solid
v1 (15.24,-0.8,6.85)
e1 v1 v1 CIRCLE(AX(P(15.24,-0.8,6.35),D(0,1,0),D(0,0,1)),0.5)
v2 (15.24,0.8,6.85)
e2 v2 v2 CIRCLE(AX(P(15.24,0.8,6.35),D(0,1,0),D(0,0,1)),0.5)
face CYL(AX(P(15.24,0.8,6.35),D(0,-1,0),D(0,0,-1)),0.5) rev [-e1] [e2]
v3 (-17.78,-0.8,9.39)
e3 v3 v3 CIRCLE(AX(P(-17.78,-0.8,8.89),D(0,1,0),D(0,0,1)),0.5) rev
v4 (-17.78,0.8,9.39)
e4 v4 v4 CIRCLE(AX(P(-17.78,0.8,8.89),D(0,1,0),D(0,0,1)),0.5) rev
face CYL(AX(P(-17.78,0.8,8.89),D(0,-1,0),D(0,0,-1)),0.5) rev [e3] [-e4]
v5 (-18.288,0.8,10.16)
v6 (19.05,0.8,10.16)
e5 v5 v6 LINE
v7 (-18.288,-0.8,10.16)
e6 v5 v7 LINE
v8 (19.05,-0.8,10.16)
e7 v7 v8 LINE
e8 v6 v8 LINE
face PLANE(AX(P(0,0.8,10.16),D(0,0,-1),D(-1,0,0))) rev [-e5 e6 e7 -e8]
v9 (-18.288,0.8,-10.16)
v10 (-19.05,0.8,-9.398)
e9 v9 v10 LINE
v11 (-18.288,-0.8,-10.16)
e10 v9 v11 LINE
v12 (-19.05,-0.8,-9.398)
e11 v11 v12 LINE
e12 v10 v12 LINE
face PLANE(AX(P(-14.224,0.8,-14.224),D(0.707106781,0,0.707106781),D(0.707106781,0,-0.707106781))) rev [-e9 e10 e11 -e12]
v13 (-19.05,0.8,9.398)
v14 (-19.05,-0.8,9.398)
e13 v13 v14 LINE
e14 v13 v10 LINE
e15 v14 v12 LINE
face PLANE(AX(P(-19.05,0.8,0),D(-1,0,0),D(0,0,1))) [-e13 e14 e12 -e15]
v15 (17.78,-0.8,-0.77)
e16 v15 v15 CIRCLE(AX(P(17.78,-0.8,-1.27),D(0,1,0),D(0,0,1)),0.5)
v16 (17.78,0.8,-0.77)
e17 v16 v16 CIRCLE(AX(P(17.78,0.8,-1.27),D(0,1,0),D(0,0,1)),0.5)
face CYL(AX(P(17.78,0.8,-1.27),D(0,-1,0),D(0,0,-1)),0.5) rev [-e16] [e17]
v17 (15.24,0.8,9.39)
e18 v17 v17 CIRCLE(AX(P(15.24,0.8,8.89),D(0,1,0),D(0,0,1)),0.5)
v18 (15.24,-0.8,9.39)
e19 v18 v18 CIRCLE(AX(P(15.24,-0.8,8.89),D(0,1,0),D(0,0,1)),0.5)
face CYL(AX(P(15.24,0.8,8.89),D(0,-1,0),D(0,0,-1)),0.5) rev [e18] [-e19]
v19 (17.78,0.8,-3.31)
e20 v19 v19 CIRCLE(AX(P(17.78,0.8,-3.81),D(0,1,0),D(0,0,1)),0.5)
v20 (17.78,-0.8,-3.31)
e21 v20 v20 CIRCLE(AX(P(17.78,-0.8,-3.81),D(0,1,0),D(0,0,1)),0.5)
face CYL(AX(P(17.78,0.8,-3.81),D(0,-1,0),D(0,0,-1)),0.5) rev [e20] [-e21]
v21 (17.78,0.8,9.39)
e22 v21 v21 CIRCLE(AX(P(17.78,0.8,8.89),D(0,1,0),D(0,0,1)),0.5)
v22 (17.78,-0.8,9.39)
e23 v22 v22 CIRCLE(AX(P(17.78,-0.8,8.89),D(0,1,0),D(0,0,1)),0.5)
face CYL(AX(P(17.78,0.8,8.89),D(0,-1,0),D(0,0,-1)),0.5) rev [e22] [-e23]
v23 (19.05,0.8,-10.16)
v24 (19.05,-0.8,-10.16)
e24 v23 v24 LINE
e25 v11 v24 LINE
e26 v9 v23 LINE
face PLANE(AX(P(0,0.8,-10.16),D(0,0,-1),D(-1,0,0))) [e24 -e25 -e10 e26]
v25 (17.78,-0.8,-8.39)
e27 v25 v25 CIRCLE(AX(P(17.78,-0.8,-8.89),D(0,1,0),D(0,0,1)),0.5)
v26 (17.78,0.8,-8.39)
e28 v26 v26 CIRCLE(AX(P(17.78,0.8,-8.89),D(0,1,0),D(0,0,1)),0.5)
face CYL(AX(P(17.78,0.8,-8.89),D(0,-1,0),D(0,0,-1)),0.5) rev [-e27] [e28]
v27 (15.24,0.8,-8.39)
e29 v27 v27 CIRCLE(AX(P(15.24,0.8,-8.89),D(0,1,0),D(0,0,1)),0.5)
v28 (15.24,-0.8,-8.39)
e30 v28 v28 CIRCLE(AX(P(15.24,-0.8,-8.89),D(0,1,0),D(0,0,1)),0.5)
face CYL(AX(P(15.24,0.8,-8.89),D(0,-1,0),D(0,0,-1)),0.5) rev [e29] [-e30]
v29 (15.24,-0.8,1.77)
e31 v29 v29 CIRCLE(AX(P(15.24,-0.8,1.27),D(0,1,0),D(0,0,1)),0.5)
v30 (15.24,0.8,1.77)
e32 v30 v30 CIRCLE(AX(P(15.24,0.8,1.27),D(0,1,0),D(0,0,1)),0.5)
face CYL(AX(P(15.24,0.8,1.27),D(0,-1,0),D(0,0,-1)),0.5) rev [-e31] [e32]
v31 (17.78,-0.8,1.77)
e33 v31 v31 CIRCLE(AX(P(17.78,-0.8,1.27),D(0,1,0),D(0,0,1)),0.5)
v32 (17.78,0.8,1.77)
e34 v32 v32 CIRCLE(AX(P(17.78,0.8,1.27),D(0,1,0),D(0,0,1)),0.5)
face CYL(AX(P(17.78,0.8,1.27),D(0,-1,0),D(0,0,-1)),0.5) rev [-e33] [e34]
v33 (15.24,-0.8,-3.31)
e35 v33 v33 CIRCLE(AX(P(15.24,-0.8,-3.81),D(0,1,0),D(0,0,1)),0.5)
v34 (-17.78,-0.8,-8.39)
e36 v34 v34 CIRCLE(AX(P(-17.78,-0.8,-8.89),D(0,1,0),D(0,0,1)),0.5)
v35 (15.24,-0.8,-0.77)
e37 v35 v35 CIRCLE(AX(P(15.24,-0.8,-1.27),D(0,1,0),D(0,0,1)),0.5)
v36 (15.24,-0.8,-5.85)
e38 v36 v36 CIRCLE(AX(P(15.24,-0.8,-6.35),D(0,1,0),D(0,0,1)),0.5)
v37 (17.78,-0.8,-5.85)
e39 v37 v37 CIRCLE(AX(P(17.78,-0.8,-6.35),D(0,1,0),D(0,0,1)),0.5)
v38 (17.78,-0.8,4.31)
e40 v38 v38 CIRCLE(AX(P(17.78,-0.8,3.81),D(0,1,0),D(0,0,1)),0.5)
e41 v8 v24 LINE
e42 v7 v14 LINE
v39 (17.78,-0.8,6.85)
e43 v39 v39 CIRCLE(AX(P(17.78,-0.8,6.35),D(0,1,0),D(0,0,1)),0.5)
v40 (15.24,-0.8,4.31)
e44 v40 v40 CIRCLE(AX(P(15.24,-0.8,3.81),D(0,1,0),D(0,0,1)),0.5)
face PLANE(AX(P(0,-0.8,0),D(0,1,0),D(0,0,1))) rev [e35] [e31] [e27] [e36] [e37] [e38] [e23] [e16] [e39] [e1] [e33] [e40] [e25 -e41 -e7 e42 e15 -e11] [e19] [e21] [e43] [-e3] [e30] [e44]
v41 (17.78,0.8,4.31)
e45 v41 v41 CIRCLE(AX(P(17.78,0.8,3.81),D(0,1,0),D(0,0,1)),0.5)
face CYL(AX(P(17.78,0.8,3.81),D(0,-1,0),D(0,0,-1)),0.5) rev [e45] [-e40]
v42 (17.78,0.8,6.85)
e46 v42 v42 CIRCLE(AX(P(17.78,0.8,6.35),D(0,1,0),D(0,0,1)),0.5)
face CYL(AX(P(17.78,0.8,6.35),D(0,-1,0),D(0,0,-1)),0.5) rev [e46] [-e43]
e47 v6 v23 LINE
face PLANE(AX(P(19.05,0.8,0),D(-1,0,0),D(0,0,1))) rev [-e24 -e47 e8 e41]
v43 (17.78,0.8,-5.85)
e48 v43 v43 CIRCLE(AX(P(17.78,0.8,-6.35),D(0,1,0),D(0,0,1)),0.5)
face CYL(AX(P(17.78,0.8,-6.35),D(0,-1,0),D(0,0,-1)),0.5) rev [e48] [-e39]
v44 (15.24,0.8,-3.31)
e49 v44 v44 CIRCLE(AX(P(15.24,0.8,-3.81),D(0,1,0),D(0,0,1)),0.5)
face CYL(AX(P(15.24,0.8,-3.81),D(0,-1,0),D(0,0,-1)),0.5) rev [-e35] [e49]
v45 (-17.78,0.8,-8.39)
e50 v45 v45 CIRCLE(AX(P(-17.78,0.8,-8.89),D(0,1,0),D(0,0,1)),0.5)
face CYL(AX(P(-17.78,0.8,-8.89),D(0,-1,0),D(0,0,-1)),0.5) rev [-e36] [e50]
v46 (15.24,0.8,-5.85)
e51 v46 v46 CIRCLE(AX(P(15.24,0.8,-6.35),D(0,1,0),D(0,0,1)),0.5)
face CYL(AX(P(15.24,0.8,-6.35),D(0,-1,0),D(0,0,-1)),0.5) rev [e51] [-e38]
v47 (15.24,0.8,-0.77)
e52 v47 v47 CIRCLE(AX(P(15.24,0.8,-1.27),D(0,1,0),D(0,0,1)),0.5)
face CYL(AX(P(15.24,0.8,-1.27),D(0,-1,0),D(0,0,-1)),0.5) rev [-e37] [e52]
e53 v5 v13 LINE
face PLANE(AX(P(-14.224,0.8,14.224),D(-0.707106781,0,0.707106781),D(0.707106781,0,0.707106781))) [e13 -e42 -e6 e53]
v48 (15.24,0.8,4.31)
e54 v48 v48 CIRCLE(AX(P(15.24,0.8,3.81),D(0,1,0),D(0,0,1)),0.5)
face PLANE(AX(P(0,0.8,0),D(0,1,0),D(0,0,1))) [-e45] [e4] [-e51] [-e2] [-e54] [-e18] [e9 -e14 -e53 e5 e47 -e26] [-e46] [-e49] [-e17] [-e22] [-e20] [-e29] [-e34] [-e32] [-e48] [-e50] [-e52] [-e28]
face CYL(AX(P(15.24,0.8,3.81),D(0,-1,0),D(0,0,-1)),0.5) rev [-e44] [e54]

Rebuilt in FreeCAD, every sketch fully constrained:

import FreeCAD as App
import Part
import Sketcher
Q = App.Units.Quantity


def add_polygon(sketch, points):
    """Adds a closed chain of lines whose ends are joined by coincident constraints."""
    first, n = sketch.GeometryCount, len(points)
    for a, b in zip(points, points[1:] + points[:1]):
        sketch.addGeometry(Part.LineSegment(App.Vector(*a, 0), App.Vector(*b, 0)), False)
    for i in range(n):
        sketch.addConstraint(Sketcher.Constraint("Coincident", first + i, 2, first + (i + 1) % n, 1))

doc = App.newDocument("Part")
body = doc.addObject("PartDesign::Body", "Body")

# Sketch on XZ plane
sketch1 = body.newObject("Sketcher::SketchObject", "Sketch")
sketch1.AttachmentSupport = (doc.getObject("XZ_Plane"), [""])
sketch1.MapMode = "FlatFace"
add_polygon(sketch1, [(-19.05, 9.398), (-18.288, 10.16), (19.05, 10.16), (19.05, -10.16), (-18.288, -10.16), (-19.05, -9.398)])  # lines 0-5
sketch1.addGeometry(Part.Circle(App.Vector(-17.78, 8.89, 0), App.Vector(0, 0, 1), 0.5), False)  # 6
sketch1.addGeometry(Part.Circle(App.Vector(15.24, 8.89, 0), App.Vector(0, 0, 1), 0.5), False)  # 7
sketch1.addGeometry(Part.Circle(App.Vector(17.78, 8.89, 0), App.Vector(0, 0, 1), 0.5), False)  # 8
sketch1.addGeometry(Part.Circle(App.Vector(15.24, 6.35, 0), App.Vector(0, 0, 1), 0.5), False)  # 9
sketch1.addGeometry(Part.Circle(App.Vector(17.78, 6.35, 0), App.Vector(0, 0, 1), 0.5), False)  # 10
sketch1.addGeometry(Part.Circle(App.Vector(15.24, 3.81, 0), App.Vector(0, 0, 1), 0.5), False)  # 11
sketch1.addGeometry(Part.Circle(App.Vector(17.78, 3.81, 0), App.Vector(0, 0, 1), 0.5), False)  # 12
sketch1.addGeometry(Part.Circle(App.Vector(15.24, 1.27, 0), App.Vector(0, 0, 1), 0.5), False)  # 13
sketch1.addGeometry(Part.Circle(App.Vector(17.78, 1.27, 0), App.Vector(0, 0, 1), 0.5), False)  # 14
sketch1.addGeometry(Part.Circle(App.Vector(-17.78, -8.89, 0), App.Vector(0, 0, 1), 0.5), False)  # 15
sketch1.addGeometry(Part.Circle(App.Vector(15.24, -1.27, 0), App.Vector(0, 0, 1), 0.5), False)  # 16
sketch1.addGeometry(Part.Circle(App.Vector(17.78, -1.27, 0), App.Vector(0, 0, 1), 0.5), False)  # 17
sketch1.addGeometry(Part.Circle(App.Vector(15.24, -3.81, 0), App.Vector(0, 0, 1), 0.5), False)  # 18
sketch1.addGeometry(Part.Circle(App.Vector(17.78, -3.81, 0), App.Vector(0, 0, 1), 0.5), False)  # 19
sketch1.addGeometry(Part.Circle(App.Vector(15.24, -6.35, 0), App.Vector(0, 0, 1), 0.5), False)  # 20
sketch1.addGeometry(Part.Circle(App.Vector(17.78, -6.35, 0), App.Vector(0, 0, 1), 0.5), False)  # 21
sketch1.addGeometry(Part.Circle(App.Vector(15.24, -8.89, 0), App.Vector(0, 0, 1), 0.5), False)  # 22
sketch1.addGeometry(Part.Circle(App.Vector(17.78, -8.89, 0), App.Vector(0, 0, 1), 0.5), False)  # 23
sketch1.addConstraint([
    Sketcher.Constraint("Horizontal", 1),
    Sketcher.Constraint("Vertical", 2),
    Sketcher.Constraint("Horizontal", 3),
    Sketcher.Constraint("Vertical", 5),
    Sketcher.Constraint("Equal", 6, 7),
    Sketcher.Constraint("Equal", 7, 8),
    Sketcher.Constraint("Equal", 8, 9),
    Sketcher.Constraint("Equal", 9, 10),
    Sketcher.Constraint("Equal", 10, 11),
    Sketcher.Constraint("Equal", 11, 12),
    Sketcher.Constraint("Equal", 12, 13),
    Sketcher.Constraint("Equal", 13, 14),
    Sketcher.Constraint("Equal", 14, 15),
    Sketcher.Constraint("Equal", 15, 16),
    Sketcher.Constraint("Equal", 16, 17),
    Sketcher.Constraint("Equal", 17, 18),
    Sketcher.Constraint("Equal", 18, 19),
    Sketcher.Constraint("Equal", 19, 20),
    Sketcher.Constraint("Equal", 20, 21),
    Sketcher.Constraint("Equal", 21, 22),
    Sketcher.Constraint("Equal", 22, 23),
    Sketcher.Constraint("Symmetric", 8, 3, 15, 3, -1, 1),
    Sketcher.Constraint("Symmetric", 6, 3, 23, 3, -1, 1),
    Sketcher.Constraint("Symmetric", 6, 3, 8, 3, -2),
    Sketcher.Constraint("Symmetric", 13, 3, 16, 3, -1),
    Sketcher.Constraint("Symmetric", 14, 3, 17, 3, -1),
    Sketcher.Constraint("Symmetric", 11, 3, 18, 3, -1),
    Sketcher.Constraint("Symmetric", 12, 3, 19, 3, -1),
    Sketcher.Constraint("Symmetric", 9, 3, 20, 3, -1),
    Sketcher.Constraint("Symmetric", 10, 3, 21, 3, -1),
    Sketcher.Constraint("Symmetric", 7, 3, 22, 3, -1),
    Sketcher.Constraint("Symmetric", 0, 2, 3, 2, -1),
    Sketcher.Constraint("Perpendicular", 0, 4),
    Sketcher.Constraint("Horizontal", 6, 3, 7, 3),
    Sketcher.Constraint("Horizontal", 9, 3, 10, 3),
    Sketcher.Constraint("Horizontal", 11, 3, 12, 3),
    Sketcher.Constraint("Horizontal", 13, 3, 14, 3),
    Sketcher.Constraint("Vertical", 7, 3, 9, 3),
    Sketcher.Constraint("Vertical", 8, 3, 10, 3),
    Sketcher.Constraint("Vertical", 9, 3, 11, 3),
    Sketcher.Constraint("Vertical", 10, 3, 12, 3),
    Sketcher.Constraint("Vertical", 11, 3, 13, 3),
    Sketcher.Constraint("Vertical", 12, 3, 14, 3),
    Sketcher.Constraint("Equal", 0, 4),
    Sketcher.Constraint("DistanceY", 2, 2, 2, 1, Q("0.8 in")),
    Sketcher.Constraint("DistanceX", 1, 1, 1, 2, Q("1.47 in")),
    Sketcher.Constraint("DistanceY", 5, 1, 5, 2, Q("0.74 in")),
    Sketcher.Constraint("DistanceX", 6, 3, -1, 1, Q("0.7 in")),
    Sketcher.Constraint("DistanceX", -1, 1, 7, 3, Q("0.6 in")),
    Sketcher.Constraint("DistanceY", 9, 3, 7, 3, Q("0.1 in")),
    Sketcher.Constraint("DistanceY", 11, 3, 9, 3, Q("0.1 in")),
    Sketcher.Constraint("DistanceY", 13, 3, 11, 3, Q("0.1 in")),
    Sketcher.Constraint("DistanceY", 15, 3, 6, 3, Q("0.7 in")),
    Sketcher.Constraint("Diameter", 6, Q("1 mm")),
    Sketcher.Constraint("DistanceX", 0, 2, -1, 1, Q("0.72 in")),
])
pad1 = body.newObject("PartDesign::Pad", "Pad")
pad1.Profile = sketch1
pad1.Length = 1.6
pad1.Midplane = True

doc.recompute()
